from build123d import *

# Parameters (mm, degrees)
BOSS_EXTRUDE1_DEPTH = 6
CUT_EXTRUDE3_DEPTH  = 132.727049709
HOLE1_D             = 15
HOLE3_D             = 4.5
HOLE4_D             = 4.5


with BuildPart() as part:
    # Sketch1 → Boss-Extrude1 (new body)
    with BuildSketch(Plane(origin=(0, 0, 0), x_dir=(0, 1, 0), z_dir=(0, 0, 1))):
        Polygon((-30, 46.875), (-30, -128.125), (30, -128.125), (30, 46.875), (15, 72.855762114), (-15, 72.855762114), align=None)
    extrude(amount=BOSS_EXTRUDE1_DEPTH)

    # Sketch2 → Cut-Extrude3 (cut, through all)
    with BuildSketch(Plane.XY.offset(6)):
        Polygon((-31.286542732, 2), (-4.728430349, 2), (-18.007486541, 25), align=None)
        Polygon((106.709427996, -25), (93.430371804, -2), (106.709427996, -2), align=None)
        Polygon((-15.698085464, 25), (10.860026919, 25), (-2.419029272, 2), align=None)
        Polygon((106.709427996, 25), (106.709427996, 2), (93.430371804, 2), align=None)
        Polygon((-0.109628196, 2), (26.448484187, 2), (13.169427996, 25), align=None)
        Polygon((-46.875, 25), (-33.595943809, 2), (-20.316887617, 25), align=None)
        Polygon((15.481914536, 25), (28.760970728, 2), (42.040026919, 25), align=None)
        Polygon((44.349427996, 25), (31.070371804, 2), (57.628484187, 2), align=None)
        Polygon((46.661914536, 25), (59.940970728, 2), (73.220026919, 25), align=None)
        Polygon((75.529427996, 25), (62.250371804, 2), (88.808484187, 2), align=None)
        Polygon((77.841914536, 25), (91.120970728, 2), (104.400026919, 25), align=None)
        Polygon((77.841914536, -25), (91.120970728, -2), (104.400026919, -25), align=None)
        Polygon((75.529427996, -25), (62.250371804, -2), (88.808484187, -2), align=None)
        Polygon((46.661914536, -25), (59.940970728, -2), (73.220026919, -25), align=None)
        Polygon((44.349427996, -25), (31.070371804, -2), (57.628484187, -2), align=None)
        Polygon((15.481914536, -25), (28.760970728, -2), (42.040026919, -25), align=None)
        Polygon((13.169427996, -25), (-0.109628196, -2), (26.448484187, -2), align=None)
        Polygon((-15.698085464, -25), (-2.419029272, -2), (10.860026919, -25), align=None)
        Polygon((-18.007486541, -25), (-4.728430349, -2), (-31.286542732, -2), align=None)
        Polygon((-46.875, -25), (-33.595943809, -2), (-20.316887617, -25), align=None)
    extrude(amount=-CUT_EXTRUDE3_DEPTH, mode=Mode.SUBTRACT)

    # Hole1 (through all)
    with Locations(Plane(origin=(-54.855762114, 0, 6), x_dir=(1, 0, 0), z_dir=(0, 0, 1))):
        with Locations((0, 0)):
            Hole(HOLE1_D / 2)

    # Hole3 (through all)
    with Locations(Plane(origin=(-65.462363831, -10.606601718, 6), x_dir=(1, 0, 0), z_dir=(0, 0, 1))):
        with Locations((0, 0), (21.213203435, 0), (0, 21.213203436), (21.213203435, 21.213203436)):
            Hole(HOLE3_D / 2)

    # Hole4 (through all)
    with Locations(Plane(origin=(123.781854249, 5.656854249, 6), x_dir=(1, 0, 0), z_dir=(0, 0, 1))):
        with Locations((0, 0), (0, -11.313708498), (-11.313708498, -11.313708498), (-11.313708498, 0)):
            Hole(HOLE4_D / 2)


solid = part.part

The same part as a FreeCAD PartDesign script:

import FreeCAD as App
import Part
import Sketcher
from FreeCAD import Vector
Q = App.Units.Quantity

doc = App.newDocument("Part")
body = doc.addObject("PartDesign::Body", "Body")

# Sketch on XY plane
sketch1 = body.newObject("Sketcher::SketchObject", "Sketch")
sketch1.AttachmentSupport = (doc.getObject("XY_Plane"), [""])
sketch1.MapMode = "FlatFace"
sketch1.addGeometry(Part.LineSegment(Vector(-47, -30, 0), Vector(128, -30, 0)), False)
sketch1.addGeometry(Part.LineSegment(Vector(128, -30, 0), Vector(128, 30, 0)), False)
sketch1.addGeometry(Part.LineSegment(Vector(128, 30, 0), Vector(-47, 30, 0)), False)
sketch1.addGeometry(Part.LineSegment(Vector(-47, 30, 0), Vector(-73, 15, 0)), False)
sketch1.addGeometry(Part.LineSegment(Vector(-73, 15, 0), Vector(-73, -15, 0)), False)
sketch1.addGeometry(Part.LineSegment(Vector(-73, -15, 0), Vector(-47, -30, 0)), False)
sketch1.addConstraint(Sketcher.Constraint("Coincident", 0, 2, 1, 1))
sketch1.addConstraint(Sketcher.Constraint("Coincident", 1, 2, 2, 1))
sketch1.addConstraint(Sketcher.Constraint("Coincident", 2, 2, 3, 1))
sketch1.addConstraint(Sketcher.Constraint("Coincident", 3, 2, 4, 1))
sketch1.addConstraint(Sketcher.Constraint("Coincident", 4, 2, 5, 1))
sketch1.addConstraint(Sketcher.Constraint("Coincident", 5, 2, 0, 1))
sketch1.addConstraint(Sketcher.Constraint("Horizontal", 0))
sketch1.addConstraint(Sketcher.Constraint("Vertical", 1))
sketch1.addConstraint(Sketcher.Constraint("Horizontal", 2))
sketch1.addConstraint(Sketcher.Constraint("Vertical", 4))
sketch1.addConstraint(Sketcher.Constraint("Symmetric", 2, 2, 5, 2, -1))
sketch1.addConstraint(Sketcher.Constraint("Equal", 3, 5))
sketch1.addConstraint(Sketcher.Constraint("DistanceX", 0, 1, 0, 2, Q("175 mm")))
sketch1.addConstraint(Sketcher.Constraint("DistanceY", 1, 1, 1, 2, Q("60 mm")))
sketch1.addConstraint(Sketcher.Constraint("DistanceY", 4, 2, 4, 1, Q("30 mm")))
sketch1.addConstraint(Sketcher.Constraint("Angle", 3, Q("-150 deg")))
sketch1.addConstraint(Sketcher.Constraint("DistanceX", -1, 1, 0, 2, Q("128.125 mm")))
pad1 = body.newObject("PartDesign::Pad", "Pad")
pad1.Profile = sketch1
pad1.Length = 6

# Sketch on XY plane
sketch2 = body.newObject("Sketcher::SketchObject", "Sketch001")
sketch2.AttachmentSupport = (doc.getObject("XY_Plane"), [""])
sketch2.MapMode = "FlatFace"
sketch2.AttachmentOffset = App.Placement(Vector(0, 0, 6), App.Rotation())
sketch2.addGeometry(Part.LineSegment(Vector(-31, 2, 0), Vector(-5, 2, 0)), False)
sketch2.addGeometry(Part.LineSegment(Vector(-5, 2, 0), Vector(-18, 25, 0)), False)
sketch2.addGeometry(Part.LineSegment(Vector(-18, 25, 0), Vector(-31, 2, 0)), False)
sketch2.addGeometry(Part.LineSegment(Vector(93, -2, 0), Vector(107, -25, 0)), False)
sketch2.addGeometry(Part.LineSegment(Vector(107, -25, 0), Vector(107, -2, 0)), False)
sketch2.addGeometry(Part.LineSegment(Vector(107, -2, 0), Vector(93, -2, 0)), False)
sketch2.addGeometry(Part.LineSegment(Vector(11, 25, 0), Vector(-16, 25, 0)), False)
sketch2.addGeometry(Part.LineSegment(Vector(-16, 25, 0), Vector(-2, 2, 0)), False)
sketch2.addGeometry(Part.LineSegment(Vector(-2, 2, 0), Vector(11, 25, 0)), False)
sketch2.addGeometry(Part.LineSegment(Vector(107, 2, 0), Vector(107, 25, 0)), False)
sketch2.addGeometry(Part.LineSegment(Vector(107, 25, 0), Vector(93, 2, 0)), False)
sketch2.addGeometry(Part.LineSegment(Vector(93, 2, 0), Vector(107, 2, 0)), False)
sketch2.addGeometry(Part.LineSegment(Vector(0, 2, 0), Vector(26, 2, 0)), False)
sketch2.addGeometry(Part.LineSegment(Vector(26, 2, 0), Vector(13, 25, 0)), False)
sketch2.addGeometry(Part.LineSegment(Vector(13, 25, 0), Vector(0, 2, 0)), False)
sketch2.addGeometry(Part.LineSegment(Vector(-47, 25, 0), Vector(-34, 2, 0)), False)
sketch2.addGeometry(Part.LineSegment(Vector(-34, 2, 0), Vector(-20, 25, 0)), False)
sketch2.addGeometry(Part.LineSegment(Vector(-20, 25, 0), Vector(-47, 25, 0)), False)
sketch2.addGeometry(Part.LineSegment(Vector(15, 25, 0), Vector(29, 2, 0)), False)
sketch2.addGeometry(Part.LineSegment(Vector(29, 2, 0), Vector(42, 25, 0)), False)
sketch2.addGeometry(Part.LineSegment(Vector(42, 25, 0), Vector(15, 25, 0)), False)
sketch2.addGeometry(Part.LineSegment(Vector(44, 25, 0), Vector(31, 2, 0)), False)
sketch2.addGeometry(Part.LineSegment(Vector(31, 2, 0), Vector(58, 2, 0)), False)
sketch2.addGeometry(Part.LineSegment(Vector(58, 2, 0), Vector(44, 25, 0)), False)
sketch2.addGeometry(Part.LineSegment(Vector(47, 25, 0), Vector(60, 2, 0)), False)
sketch2.addGeometry(Part.LineSegment(Vector(60, 2, 0), Vector(73, 25, 0)), False)
sketch2.addGeometry(Part.LineSegment(Vector(73, 25, 0), Vector(47, 25, 0)), False)
sketch2.addGeometry(Part.LineSegment(Vector(76, 25, 0), Vector(62, 2, 0)), False)
sketch2.addGeometry(Part.LineSegment(Vector(62, 2, 0), Vector(89, 2, 0)), False)
sketch2.addGeometry(Part.LineSegment(Vector(89, 2, 0), Vector(76, 25, 0)), False)
sketch2.addGeometry(Part.LineSegment(Vector(78, 25, 0), Vector(91, 2, 0)), False)
sketch2.addGeometry(Part.LineSegment(Vector(91, 2, 0), Vector(104, 25, 0)), False)
sketch2.addGeometry(Part.LineSegment(Vector(104, 25, 0), Vector(78, 25, 0)), False)
sketch2.addGeometry(Part.LineSegment(Vector(91, -2, 0), Vector(78, -25, 0)), False)
sketch2.addGeometry(Part.LineSegment(Vector(78, -25, 0), Vector(104, -25, 0)), False)
sketch2.addGeometry(Part.LineSegment(Vector(104, -25, 0), Vector(91, -2, 0)), False)
sketch2.addGeometry(Part.LineSegment(Vector(62, -2, 0), Vector(76, -25, 0)), False)
sketch2.addGeometry(Part.LineSegment(Vector(76, -25, 0), Vector(89, -2, 0)), False)
sketch2.addGeometry(Part.LineSegment(Vector(89, -2, 0), Vector(62, -2, 0)), False)
sketch2.addGeometry(Part.LineSegment(Vector(60, -2, 0), Vector(47, -25, 0)), False)
sketch2.addGeometry(Part.LineSegment(Vector(47, -25, 0), Vector(73, -25, 0)), False)
sketch2.addGeometry(Part.LineSegment(Vector(73, -25, 0), Vector(60, -2, 0)), False)
sketch2.addGeometry(Part.LineSegment(Vector(31, -2, 0), Vector(44, -25, 0)), False)
sketch2.addGeometry(Part.LineSegment(Vector(44, -25, 0), Vector(58, -2, 0)), False)
sketch2.addGeometry(Part.LineSegment(Vector(58, -2, 0), Vector(31, -2, 0)), False)
sketch2.addGeometry(Part.LineSegment(Vector(29, -2, 0), Vector(15, -25, 0)), False)
sketch2.addGeometry(Part.LineSegment(Vector(15, -25, 0), Vector(42, -25, 0)), False)
sketch2.addGeometry(Part.LineSegment(Vector(42, -25, 0), Vector(29, -2, 0)), False)
sketch2.addGeometry(Part.LineSegment(Vector(0, -2, 0), Vector(13, -25, 0)), False)
sketch2.addGeometry(Part.LineSegment(Vector(13, -25, 0), Vector(26, -2, 0)), False)
sketch2.addGeometry(Part.LineSegment(Vector(26, -2, 0), Vector(0, -2, 0)), False)
sketch2.addGeometry(Part.LineSegment(Vector(-2, -2, 0), Vector(-16, -25, 0)), False)
sketch2.addGeometry(Part.LineSegment(Vector(-16, -25, 0), Vector(11, -25, 0)), False)
sketch2.addGeometry(Part.LineSegment(Vector(11, -25, 0), Vector(-2, -2, 0)), False)
sketch2.addGeometry(Part.LineSegment(Vector(-18, -25, 0), Vector(-5, -2, 0)), False)
sketch2.addGeometry(Part.LineSegment(Vector(-5, -2, 0), Vector(-31, -2, 0)), False)
sketch2.addGeometry(Part.LineSegment(Vector(-31, -2, 0), Vector(-18, -25, 0)), False)
sketch2.addGeometry(Part.LineSegment(Vector(-34, -2, 0), Vector(-47, -25, 0)), False)
sketch2.addGeometry(Part.LineSegment(Vector(-47, -25, 0), Vector(-20, -25, 0)), False)
sketch2.addGeometry(Part.LineSegment(Vector(-20, -25, 0), Vector(-34, -2, 0)), False)
sketch2.addConstraint(Sketcher.Constraint("Coincident", 0, 2, 1, 1))
sketch2.addConstraint(Sketcher.Constraint("Coincident", 1, 2, 2, 1))
sketch2.addConstraint(Sketcher.Constraint("Coincident", 2, 2, 0, 1))
sketch2.addConstraint(Sketcher.Constraint("Coincident", 3, 2, 4, 1))
sketch2.addConstraint(Sketcher.Constraint("Coincident", 4, 2, 5, 1))
sketch2.addConstraint(Sketcher.Constraint("Coincident", 5, 2, 3, 1))
sketch2.addConstraint(Sketcher.Constraint("Coincident", 6, 2, 7, 1))
sketch2.addConstraint(Sketcher.Constraint("Coincident", 7, 2, 8, 1))
sketch2.addConstraint(Sketcher.Constraint("Coincident", 8, 2, 6, 1))
sketch2.addConstraint(Sketcher.Constraint("Coincident", 9, 2, 10, 1))
sketch2.addConstraint(Sketcher.Constraint("Coincident", 10, 2, 11, 1))
sketch2.addConstraint(Sketcher.Constraint("Coincident", 11, 2, 9, 1))
sketch2.addConstraint(Sketcher.Constraint("Coincident", 12, 2, 13, 1))
sketch2.addConstraint(Sketcher.Constraint("Coincident", 13, 2, 14, 1))
sketch2.addConstraint(Sketcher.Constraint("Coincident", 14, 2, 12, 1))
sketch2.addConstraint(Sketcher.Constraint("Coincident", 15, 2, 16, 1))
sketch2.addConstraint(Sketcher.Constraint("Coincident", 16, 2, 17, 1))
sketch2.addConstraint(Sketcher.Constraint("Coincident", 17, 2, 15, 1))
sketch2.addConstraint(Sketcher.Constraint("Coincident", 18, 2, 19, 1))
sketch2.addConstraint(Sketcher.Constraint("Coincident", 19, 2, 20, 1))
sketch2.addConstraint(Sketcher.Constraint("Coincident", 20, 2, 18, 1))
sketch2.addConstraint(Sketcher.Constraint("Coincident", 21, 2, 22, 1))
sketch2.addConstraint(Sketcher.Constraint("Coincident", 22, 2, 23, 1))
sketch2.addConstraint(Sketcher.Constraint("Coincident", 23, 2, 21, 1))
sketch2.addConstraint(Sketcher.Constraint("Coincident", 24, 2, 25, 1))
sketch2.addConstraint(Sketcher.Constraint("Coincident", 25, 2, 26, 1))
sketch2.addConstraint(Sketcher.Constraint("Coincident", 26, 2, 24, 1))
sketch2.addConstraint(Sketcher.Constraint("Coincident", 27, 2, 28, 1))
sketch2.addConstraint(Sketcher.Constraint("Coincident", 28, 2, 29, 1))
sketch2.addConstraint(Sketcher.Constraint("Coincident", 29, 2, 27, 1))
sketch2.addConstraint(Sketcher.Constraint("Coincident", 30, 2, 31, 1))
sketch2.addConstraint(Sketcher.Constraint("Coincident", 31, 2, 32, 1))
sketch2.addConstraint(Sketcher.Constraint("Coincident", 32, 2, 30, 1))
sketch2.addConstraint(Sketcher.Constraint("Coincident", 33, 2, 34, 1))
sketch2.addConstraint(Sketcher.Constraint("Coincident", 34, 2, 35, 1))
sketch2.addConstraint(Sketcher.Constraint("Coincident", 35, 2, 33, 1))
sketch2.addConstraint(Sketcher.Constraint("Coincident", 36, 2, 37, 1))
sketch2.addConstraint(Sketcher.Constraint("Coincident", 37, 2, 38, 1))
sketch2.addConstraint(Sketcher.Constraint("Coincident", 38, 2, 36, 1))
sketch2.addConstraint(Sketcher.Constraint("Coincident", 39, 2, 40, 1))
sketch2.addConstraint(Sketcher.Constraint("Coincident", 40, 2, 41, 1))
sketch2.addConstraint(Sketcher.Constraint("Coincident", 41, 2, 39, 1))
sketch2.addConstraint(Sketcher.Constraint("Coincident", 42, 2, 43, 1))
sketch2.addConstraint(Sketcher.Constraint("Coincident", 43, 2, 44, 1))
sketch2.addConstraint(Sketcher.Constraint("Coincident", 44, 2, 42, 1))
sketch2.addConstraint(Sketcher.Constraint("Coincident", 45, 2, 46, 1))
sketch2.addConstraint(Sketcher.Constraint("Coincident", 46, 2, 47, 1))
sketch2.addConstraint(Sketcher.Constraint("Coincident", 47, 2, 45, 1))
sketch2.addConstraint(Sketcher.Constraint("Coincident", 48, 2, 49, 1))
sketch2.addConstraint(Sketcher.Constraint("Coincident", 49, 2, 50, 1))
sketch2.addConstraint(Sketcher.Constraint("Coincident", 50, 2, 48, 1))
sketch2.addConstraint(Sketcher.Constraint("Coincident", 51, 2, 52, 1))
sketch2.addConstraint(Sketcher.Constraint("Coincident", 52, 2, 53, 1))
sketch2.addConstraint(Sketcher.Constraint("Coincident", 53, 2, 51, 1))
sketch2.addConstraint(Sketcher.Constraint("Coincident", 54, 2, 55, 1))
sketch2.addConstraint(Sketcher.Constraint("Coincident", 55, 2, 56, 1))
sketch2.addConstraint(Sketcher.Constraint("Coincident", 56, 2, 54, 1))
sketch2.addConstraint(Sketcher.Constraint("Coincident", 57, 2, 58, 1))
sketch2.addConstraint(Sketcher.Constraint("Coincident", 58, 2, 59, 1))
sketch2.addConstraint(Sketcher.Constraint("Coincident", 59, 2, 57, 1))
sketch2.addConstraint(Sketcher.Constraint("Horizontal", 0))
sketch2.addConstraint(Sketcher.Constraint("Vertical", 4))
sketch2.addConstraint(Sketcher.Constraint("Horizontal", 5))
sketch2.addConstraint(Sketcher.Constraint("Horizontal", 6))
sketch2.addConstraint(Sketcher.Constraint("Vertical", 9))
sketch2.addConstraint(Sketcher.Constraint("Horizontal", 11))
sketch2.addConstraint(Sketcher.Constraint("Horizontal", 12))
sketch2.addConstraint(Sketcher.Constraint("Horizontal", 17))
sketch2.addConstraint(Sketcher.Constraint("Horizontal", 20))
sketch2.addConstraint(Sketcher.Constraint("Horizontal", 22))
sketch2.addConstraint(Sketcher.Constraint("Horizontal", 26))
sketch2.addConstraint(Sketcher.Constraint("Horizontal", 28))
sketch2.addConstraint(Sketcher.Constraint("Horizontal", 32))
sketch2.addConstraint(Sketcher.Constraint("Horizontal", 34))
sketch2.addConstraint(Sketcher.Constraint("Horizontal", 38))
sketch2.addConstraint(Sketcher.Constraint("Horizontal", 40))
sketch2.addConstraint(Sketcher.Constraint("Horizontal", 44))
sketch2.addConstraint(Sketcher.Constraint("Horizontal", 46))
sketch2.addConstraint(Sketcher.Constraint("Horizontal", 50))
sketch2.addConstraint(Sketcher.Constraint("Horizontal", 52))
sketch2.addConstraint(Sketcher.Constraint("Horizontal", 55))
sketch2.addConstraint(Sketcher.Constraint("Horizontal", 58))
sketch2.addConstraint(Sketcher.Constraint("Symmetric", 3, 2, 9, 2, -1))
sketch2.addConstraint(Sketcher.Constraint("Symmetric", 5, 2, 10, 2, -1))
sketch2.addConstraint(Sketcher.Constraint("Symmetric", 32, 2, 33, 2, -1))
sketch2.addConstraint(Sketcher.Constraint("Symmetric", 30, 2, 35, 2, -1))
sketch2.addConstraint(Sketcher.Constraint("Symmetric", 29, 2, 36, 2, -1))
sketch2.addConstraint(Sketcher.Constraint("Symmetric", 28, 2, 37, 2, -1))
sketch2.addConstraint(Sketcher.Constraint("Symmetric", 26, 2, 39, 2, -1))
sketch2.addConstraint(Sketcher.Constraint("Symmetric", 24, 2, 41, 2, -1))
sketch2.addConstraint(Sketcher.Constraint("Symmetric", 23, 2, 42, 2, -1))
sketch2.addConstraint(Sketcher.Constraint("Symmetric", 22, 2, 43, 2, -1))
sketch2.addConstraint(Sketcher.Constraint("Symmetric", 20, 2, 45, 2, -1))
sketch2.addConstraint(Sketcher.Constraint("Symmetric", 18, 2, 47, 2, -1))
sketch2.addConstraint(Sketcher.Constraint("Symmetric", 13, 2, 48, 2, -1))
sketch2.addConstraint(Sketcher.Constraint("Symmetric", 12, 2, 49, 2, -1))
sketch2.addConstraint(Sketcher.Constraint("Symmetric", 6, 2, 51, 2, -1))
sketch2.addConstraint(Sketcher.Constraint("Symmetric", 7, 2, 53, 2, -1))
sketch2.addConstraint(Sketcher.Constraint("Symmetric", 0, 2, 54, 2, -1))
sketch2.addConstraint(Sketcher.Constraint("Symmetric", 1, 2, 56, 2, -1))
sketch2.addConstraint(Sketcher.Constraint("Symmetric", 17, 2, 57, 2, -1))
sketch2.addConstraint(Sketcher.Constraint("Symmetric", 15, 2, 59, 2, -1))
sketch2.addConstraint(Sketcher.Constraint("Parallel", 1, 3))
sketch2.addConstraint(Sketcher.Constraint("Parallel", 3, 7))
sketch2.addConstraint(Sketcher.Constraint("Parallel", 2, 8))
sketch2.addConstraint(Sketcher.Constraint("Parallel", 8, 10))
sketch2.addConstraint(Sketcher.Constraint("Parallel", 7, 13))
sketch2.addConstraint(Sketcher.Constraint("Parallel", 10, 14))
sketch2.addConstraint(Sketcher.Constraint("Parallel", 13, 15))
sketch2.addConstraint(Sketcher.Constraint("Parallel", 14, 16))
sketch2.addConstraint(Sketcher.Constraint("Parallel", 15, 18))
sketch2.addConstraint(Sketcher.Constraint("Parallel", 16, 19))
sketch2.addConstraint(Sketcher.Constraint("Parallel", 19, 21))
sketch2.addConstraint(Sketcher.Constraint("Parallel", 18, 23))
sketch2.addConstraint(Sketcher.Constraint("Parallel", 23, 24))
sketch2.addConstraint(Sketcher.Constraint("Parallel", 21, 25))
sketch2.addConstraint(Sketcher.Constraint("Parallel", 25, 27))
sketch2.addConstraint(Sketcher.Constraint("Parallel", 24, 29))
sketch2.addConstraint(Sketcher.Constraint("Parallel", 29, 30))
sketch2.addConstraint(Sketcher.Constraint("Parallel", 27, 31))
sketch2.addConstraint(Sketcher.Constraint("Parallel", 30, 35))
sketch2.addConstraint(Sketcher.Constraint("Parallel", 35, 36))
sketch2.addConstraint(Sketcher.Constraint("Parallel", 36, 41))
sketch2.addConstraint(Sketcher.Constraint("Parallel", 41, 42))
sketch2.addConstraint(Sketcher.Constraint("Parallel", 42, 47))
sketch2.addConstraint(Sketcher.Constraint("Parallel", 47, 48))
sketch2.addConstraint(Sketcher.Constraint("Parallel", 48, 53))
sketch2.addConstraint(Sketcher.Constraint("Parallel", 53, 56))
sketch2.addConstraint(Sketcher.Constraint("Parallel", 56, 59))
sketch2.addConstraint(Sketcher.Constraint("Horizontal", 1, 2, 6, 2))
sketch2.addConstraint(Sketcher.Constraint("Horizontal", 2, 2, 7, 2))
sketch2.addConstraint(Sketcher.Constraint("Horizontal", 8, 2, 9, 2))
sketch2.addConstraint(Sketcher.Constraint("Horizontal", 7, 2, 10, 2))
sketch2.addConstraint(Sketcher.Constraint("Horizontal", 11, 2, 12, 2))
sketch2.addConstraint(Sketcher.Constraint("Horizontal", 9, 2, 13, 2))
sketch2.addConstraint(Sketcher.Constraint("Horizontal", 14, 2, 15, 2))
sketch2.addConstraint(Sketcher.Constraint("Horizontal", 13, 2, 16, 2))
sketch2.addConstraint(Sketcher.Constraint("Horizontal", 15, 2, 18, 2))
sketch2.addConstraint(Sketcher.Constraint("Horizontal", 17, 2, 19, 2))
sketch2.addConstraint(Sketcher.Constraint("Horizontal", 18, 2, 21, 2))
sketch2.addConstraint(Sketcher.Constraint("Horizontal", 20, 2, 23, 2))
sketch2.addConstraint(Sketcher.Constraint("Horizontal", 22, 2, 24, 2))
sketch2.addConstraint(Sketcher.Constraint("Horizontal", 23, 2, 25, 2))
sketch2.addConstraint(Sketcher.Constraint("Horizontal", 24, 2, 27, 2))
sketch2.addConstraint(Sketcher.Constraint("Horizontal", 26, 2, 29, 2))
sketch2.addConstraint(Sketcher.Constraint("Horizontal", 28, 2, 30, 2))
sketch2.addConstraint(Sketcher.Constraint("Horizontal", 29, 2, 31, 2))
sketch2.addConstraint(Sketcher.Constraint("DistanceY", 4, 1, 4, 2, Q("23 mm")))
sketch2.addConstraint(Sketcher.Constraint("Angle", 1, Q("120 deg")))
sketch2.addConstraint(Sketcher.Constraint("DistanceY", -1, 1, 0, 2, Q("2 mm")))
sketch2.addConstraint(Sketcher.Constraint("DistanceX", 7, 2, 18, 2, Q("31.18 mm")))
sketch2.addConstraint(Sketcher.Constraint("DistanceX", 12, 2, 22, 2, Q("31.18 mm")))
sketch2.addConstraint(Sketcher.Constraint("DistanceX", 18, 2, 24, 2, Q("31.18 mm")))
sketch2.addConstraint(Sketcher.Constraint("DistanceX", 17, 2, -1, 1, Q("46.875 mm")))
sketch2.addConstraint(Sketcher.Constraint("DistanceX", 1, 2, 6, 2, Q("2.309401 mm")))
sketch2.addConstraint(Sketcher.Constraint("DistanceX", 7, 2, 5, 2, Q("95.849401 mm")))
sketch2.addConstraint(Sketcher.Constraint("DistanceX", 8, 2, 13, 2, Q("2.309401 mm")))
sketch2.addConstraint(Sketcher.Constraint("DistanceX", 15, 2, 2, 2, Q("2.309401 mm")))
sketch2.addConstraint(Sketcher.Constraint("DistanceX", 24, 2, 27, 2, Q("2.309401 mm")))
sketch2.addConstraint(Sketcher.Constraint("DistanceX", 30, 2, 10, 2, Q("2.309401 mm")))
pocket1 = body.newObject("PartDesign::Pocket", "Pocket")
pocket1.Profile = sketch2
pocket1.Type = "ThroughAll"

# Sketch on XY plane
sketch3 = body.newObject("Sketcher::SketchObject", "Sketch002")
sketch3.AttachmentSupport = (doc.getObject("XY_Plane"), [""])
sketch3.MapMode = "FlatFace"
sketch3.AttachmentOffset = App.Placement(Vector(0, 0, 6), App.Rotation())
sketch3.addGeometry(Part.Circle(Vector(-55, 0, 0), Vector(0, 0, 1), 8), False)
sketch3.addConstraint(Sketcher.Constraint("PointOnObject", 0, 3, -1))
sketch3.addConstraint(Sketcher.Constraint("Diameter", 0, Q("15 mm")))
sketch3.addConstraint(Sketcher.Constraint("DistanceX", 0, 3, -1, 1, Q("54.855762 mm")))
doc.recompute()
hole = body.newObject("PartDesign::Hole", "Hole")
hole.Profile = sketch3
hole.ThreadType = "None"
hole.Diameter = 15
hole.DepthType = "ThroughAll"

# Sketch on XY plane
sketch4 = body.newObject("Sketcher::SketchObject", "Sketch003")
sketch4.AttachmentSupport = (doc.getObject("XY_Plane"), [""])
sketch4.MapMode = "FlatFace"
sketch4.AttachmentOffset = App.Placement(Vector(0, 0, 6), App.Rotation())
sketch4.addGeometry(Part.Circle(Vector(-65.5, -10.6, 0), Vector(0, 0, 1), 2.2), False)
sketch4.addGeometry(Part.Circle(Vector(-44.2, -10.6, 0), Vector(0, 0, 1), 2.2), False)
sketch4.addGeometry(Part.Circle(Vector(-65.5, 10.6, 0), Vector(0, 0, 1), 2.2), False)
sketch4.addGeometry(Part.Circle(Vector(-44.2, 10.6, 0), Vector(0, 0, 1), 2.2), False)
sketch4.addConstraint(Sketcher.Constraint("Equal", 0, 1))
sketch4.addConstraint(Sketcher.Constraint("Equal", 1, 2))
sketch4.addConstraint(Sketcher.Constraint("Equal", 2, 3))
sketch4.addConstraint(Sketcher.Constraint("Symmetric", 0, 3, 2, 3, -1))
sketch4.addConstraint(Sketcher.Constraint("Symmetric", 1, 3, 3, 3, -1))
sketch4.addConstraint(Sketcher.Constraint("Horizontal", 0, 3, 1, 3))
sketch4.addConstraint(Sketcher.Constraint("Diameter", 0, Q("4.5 mm")))
sketch4.addConstraint(Sketcher.Constraint("DistanceY", 0, 3, -1, 1, Q("10.606602 mm")))
sketch4.addConstraint(Sketcher.Constraint("DistanceX", 1, 3, -1, 1, Q("44.24916 mm")))
sketch4.addConstraint(Sketcher.Constraint("DistanceX", 0, 3, -1, 1, Q("65.462364 mm")))
doc.recompute()
hole2 = body.newObject("PartDesign::Hole", "Hole001")
hole2.Profile = sketch4
hole2.ThreadType = "None"
hole2.Diameter = 4.5
hole2.DepthType = "ThroughAll"

# Sketch on XY plane
sketch5 = body.newObject("Sketcher::SketchObject", "Sketch004")
sketch5.AttachmentSupport = (doc.getObject("XY_Plane"), [""])
sketch5.MapMode = "FlatFace"
sketch5.AttachmentOffset = App.Placement(Vector(0, 0, 6), App.Rotation())
sketch5.addGeometry(Part.Circle(Vector(123.8, 5.7, 0), Vector(0, 0, 1), 2.2), False)
sketch5.addGeometry(Part.Circle(Vector(123.8, -5.7, 0), Vector(0, 0, 1), 2.2), False)
sketch5.addGeometry(Part.Circle(Vector(112.5, -5.7, 0), Vector(0, 0, 1), 2.2), False)
sketch5.addGeometry(Part.Circle(Vector(112.5, 5.7, 0), Vector(0, 0, 1), 2.2), False)
sketch5.addConstraint(Sketcher.Constraint("Equal", 0, 1))
sketch5.addConstraint(Sketcher.Constraint("Equal", 1, 2))
sketch5.addConstraint(Sketcher.Constraint("Equal", 2, 3))
sketch5.addConstraint(Sketcher.Constraint("Symmetric", 0, 3, 1, 3, -1))
sketch5.addConstraint(Sketcher.Constraint("Symmetric", 2, 3, 3, 3, -1))
sketch5.addConstraint(Sketcher.Constraint("Horizontal", 1, 3, 2, 3))
sketch5.addConstraint(Sketcher.Constraint("Diameter", 0, Q("4.5 mm")))
sketch5.addConstraint(Sketcher.Constraint("DistanceY", 1, 3, 0, 3, Q("11.313708 mm")))
sketch5.addConstraint(Sketcher.Constraint("DistanceX", 2, 3, 1, 3, Q("11.313708 mm")))
sketch5.addConstraint(Sketcher.Constraint("DistanceX", -1, 1, 0, 3, Q("123.781854 mm")))
doc.recompute()
hole3 = body.newObject("PartDesign::Hole", "Hole002")
hole3.Profile = sketch5
hole3.ThreadType = "None"
hole3.Diameter = 4.5
hole3.DepthType = "ThroughAll"

doc.recompute()
